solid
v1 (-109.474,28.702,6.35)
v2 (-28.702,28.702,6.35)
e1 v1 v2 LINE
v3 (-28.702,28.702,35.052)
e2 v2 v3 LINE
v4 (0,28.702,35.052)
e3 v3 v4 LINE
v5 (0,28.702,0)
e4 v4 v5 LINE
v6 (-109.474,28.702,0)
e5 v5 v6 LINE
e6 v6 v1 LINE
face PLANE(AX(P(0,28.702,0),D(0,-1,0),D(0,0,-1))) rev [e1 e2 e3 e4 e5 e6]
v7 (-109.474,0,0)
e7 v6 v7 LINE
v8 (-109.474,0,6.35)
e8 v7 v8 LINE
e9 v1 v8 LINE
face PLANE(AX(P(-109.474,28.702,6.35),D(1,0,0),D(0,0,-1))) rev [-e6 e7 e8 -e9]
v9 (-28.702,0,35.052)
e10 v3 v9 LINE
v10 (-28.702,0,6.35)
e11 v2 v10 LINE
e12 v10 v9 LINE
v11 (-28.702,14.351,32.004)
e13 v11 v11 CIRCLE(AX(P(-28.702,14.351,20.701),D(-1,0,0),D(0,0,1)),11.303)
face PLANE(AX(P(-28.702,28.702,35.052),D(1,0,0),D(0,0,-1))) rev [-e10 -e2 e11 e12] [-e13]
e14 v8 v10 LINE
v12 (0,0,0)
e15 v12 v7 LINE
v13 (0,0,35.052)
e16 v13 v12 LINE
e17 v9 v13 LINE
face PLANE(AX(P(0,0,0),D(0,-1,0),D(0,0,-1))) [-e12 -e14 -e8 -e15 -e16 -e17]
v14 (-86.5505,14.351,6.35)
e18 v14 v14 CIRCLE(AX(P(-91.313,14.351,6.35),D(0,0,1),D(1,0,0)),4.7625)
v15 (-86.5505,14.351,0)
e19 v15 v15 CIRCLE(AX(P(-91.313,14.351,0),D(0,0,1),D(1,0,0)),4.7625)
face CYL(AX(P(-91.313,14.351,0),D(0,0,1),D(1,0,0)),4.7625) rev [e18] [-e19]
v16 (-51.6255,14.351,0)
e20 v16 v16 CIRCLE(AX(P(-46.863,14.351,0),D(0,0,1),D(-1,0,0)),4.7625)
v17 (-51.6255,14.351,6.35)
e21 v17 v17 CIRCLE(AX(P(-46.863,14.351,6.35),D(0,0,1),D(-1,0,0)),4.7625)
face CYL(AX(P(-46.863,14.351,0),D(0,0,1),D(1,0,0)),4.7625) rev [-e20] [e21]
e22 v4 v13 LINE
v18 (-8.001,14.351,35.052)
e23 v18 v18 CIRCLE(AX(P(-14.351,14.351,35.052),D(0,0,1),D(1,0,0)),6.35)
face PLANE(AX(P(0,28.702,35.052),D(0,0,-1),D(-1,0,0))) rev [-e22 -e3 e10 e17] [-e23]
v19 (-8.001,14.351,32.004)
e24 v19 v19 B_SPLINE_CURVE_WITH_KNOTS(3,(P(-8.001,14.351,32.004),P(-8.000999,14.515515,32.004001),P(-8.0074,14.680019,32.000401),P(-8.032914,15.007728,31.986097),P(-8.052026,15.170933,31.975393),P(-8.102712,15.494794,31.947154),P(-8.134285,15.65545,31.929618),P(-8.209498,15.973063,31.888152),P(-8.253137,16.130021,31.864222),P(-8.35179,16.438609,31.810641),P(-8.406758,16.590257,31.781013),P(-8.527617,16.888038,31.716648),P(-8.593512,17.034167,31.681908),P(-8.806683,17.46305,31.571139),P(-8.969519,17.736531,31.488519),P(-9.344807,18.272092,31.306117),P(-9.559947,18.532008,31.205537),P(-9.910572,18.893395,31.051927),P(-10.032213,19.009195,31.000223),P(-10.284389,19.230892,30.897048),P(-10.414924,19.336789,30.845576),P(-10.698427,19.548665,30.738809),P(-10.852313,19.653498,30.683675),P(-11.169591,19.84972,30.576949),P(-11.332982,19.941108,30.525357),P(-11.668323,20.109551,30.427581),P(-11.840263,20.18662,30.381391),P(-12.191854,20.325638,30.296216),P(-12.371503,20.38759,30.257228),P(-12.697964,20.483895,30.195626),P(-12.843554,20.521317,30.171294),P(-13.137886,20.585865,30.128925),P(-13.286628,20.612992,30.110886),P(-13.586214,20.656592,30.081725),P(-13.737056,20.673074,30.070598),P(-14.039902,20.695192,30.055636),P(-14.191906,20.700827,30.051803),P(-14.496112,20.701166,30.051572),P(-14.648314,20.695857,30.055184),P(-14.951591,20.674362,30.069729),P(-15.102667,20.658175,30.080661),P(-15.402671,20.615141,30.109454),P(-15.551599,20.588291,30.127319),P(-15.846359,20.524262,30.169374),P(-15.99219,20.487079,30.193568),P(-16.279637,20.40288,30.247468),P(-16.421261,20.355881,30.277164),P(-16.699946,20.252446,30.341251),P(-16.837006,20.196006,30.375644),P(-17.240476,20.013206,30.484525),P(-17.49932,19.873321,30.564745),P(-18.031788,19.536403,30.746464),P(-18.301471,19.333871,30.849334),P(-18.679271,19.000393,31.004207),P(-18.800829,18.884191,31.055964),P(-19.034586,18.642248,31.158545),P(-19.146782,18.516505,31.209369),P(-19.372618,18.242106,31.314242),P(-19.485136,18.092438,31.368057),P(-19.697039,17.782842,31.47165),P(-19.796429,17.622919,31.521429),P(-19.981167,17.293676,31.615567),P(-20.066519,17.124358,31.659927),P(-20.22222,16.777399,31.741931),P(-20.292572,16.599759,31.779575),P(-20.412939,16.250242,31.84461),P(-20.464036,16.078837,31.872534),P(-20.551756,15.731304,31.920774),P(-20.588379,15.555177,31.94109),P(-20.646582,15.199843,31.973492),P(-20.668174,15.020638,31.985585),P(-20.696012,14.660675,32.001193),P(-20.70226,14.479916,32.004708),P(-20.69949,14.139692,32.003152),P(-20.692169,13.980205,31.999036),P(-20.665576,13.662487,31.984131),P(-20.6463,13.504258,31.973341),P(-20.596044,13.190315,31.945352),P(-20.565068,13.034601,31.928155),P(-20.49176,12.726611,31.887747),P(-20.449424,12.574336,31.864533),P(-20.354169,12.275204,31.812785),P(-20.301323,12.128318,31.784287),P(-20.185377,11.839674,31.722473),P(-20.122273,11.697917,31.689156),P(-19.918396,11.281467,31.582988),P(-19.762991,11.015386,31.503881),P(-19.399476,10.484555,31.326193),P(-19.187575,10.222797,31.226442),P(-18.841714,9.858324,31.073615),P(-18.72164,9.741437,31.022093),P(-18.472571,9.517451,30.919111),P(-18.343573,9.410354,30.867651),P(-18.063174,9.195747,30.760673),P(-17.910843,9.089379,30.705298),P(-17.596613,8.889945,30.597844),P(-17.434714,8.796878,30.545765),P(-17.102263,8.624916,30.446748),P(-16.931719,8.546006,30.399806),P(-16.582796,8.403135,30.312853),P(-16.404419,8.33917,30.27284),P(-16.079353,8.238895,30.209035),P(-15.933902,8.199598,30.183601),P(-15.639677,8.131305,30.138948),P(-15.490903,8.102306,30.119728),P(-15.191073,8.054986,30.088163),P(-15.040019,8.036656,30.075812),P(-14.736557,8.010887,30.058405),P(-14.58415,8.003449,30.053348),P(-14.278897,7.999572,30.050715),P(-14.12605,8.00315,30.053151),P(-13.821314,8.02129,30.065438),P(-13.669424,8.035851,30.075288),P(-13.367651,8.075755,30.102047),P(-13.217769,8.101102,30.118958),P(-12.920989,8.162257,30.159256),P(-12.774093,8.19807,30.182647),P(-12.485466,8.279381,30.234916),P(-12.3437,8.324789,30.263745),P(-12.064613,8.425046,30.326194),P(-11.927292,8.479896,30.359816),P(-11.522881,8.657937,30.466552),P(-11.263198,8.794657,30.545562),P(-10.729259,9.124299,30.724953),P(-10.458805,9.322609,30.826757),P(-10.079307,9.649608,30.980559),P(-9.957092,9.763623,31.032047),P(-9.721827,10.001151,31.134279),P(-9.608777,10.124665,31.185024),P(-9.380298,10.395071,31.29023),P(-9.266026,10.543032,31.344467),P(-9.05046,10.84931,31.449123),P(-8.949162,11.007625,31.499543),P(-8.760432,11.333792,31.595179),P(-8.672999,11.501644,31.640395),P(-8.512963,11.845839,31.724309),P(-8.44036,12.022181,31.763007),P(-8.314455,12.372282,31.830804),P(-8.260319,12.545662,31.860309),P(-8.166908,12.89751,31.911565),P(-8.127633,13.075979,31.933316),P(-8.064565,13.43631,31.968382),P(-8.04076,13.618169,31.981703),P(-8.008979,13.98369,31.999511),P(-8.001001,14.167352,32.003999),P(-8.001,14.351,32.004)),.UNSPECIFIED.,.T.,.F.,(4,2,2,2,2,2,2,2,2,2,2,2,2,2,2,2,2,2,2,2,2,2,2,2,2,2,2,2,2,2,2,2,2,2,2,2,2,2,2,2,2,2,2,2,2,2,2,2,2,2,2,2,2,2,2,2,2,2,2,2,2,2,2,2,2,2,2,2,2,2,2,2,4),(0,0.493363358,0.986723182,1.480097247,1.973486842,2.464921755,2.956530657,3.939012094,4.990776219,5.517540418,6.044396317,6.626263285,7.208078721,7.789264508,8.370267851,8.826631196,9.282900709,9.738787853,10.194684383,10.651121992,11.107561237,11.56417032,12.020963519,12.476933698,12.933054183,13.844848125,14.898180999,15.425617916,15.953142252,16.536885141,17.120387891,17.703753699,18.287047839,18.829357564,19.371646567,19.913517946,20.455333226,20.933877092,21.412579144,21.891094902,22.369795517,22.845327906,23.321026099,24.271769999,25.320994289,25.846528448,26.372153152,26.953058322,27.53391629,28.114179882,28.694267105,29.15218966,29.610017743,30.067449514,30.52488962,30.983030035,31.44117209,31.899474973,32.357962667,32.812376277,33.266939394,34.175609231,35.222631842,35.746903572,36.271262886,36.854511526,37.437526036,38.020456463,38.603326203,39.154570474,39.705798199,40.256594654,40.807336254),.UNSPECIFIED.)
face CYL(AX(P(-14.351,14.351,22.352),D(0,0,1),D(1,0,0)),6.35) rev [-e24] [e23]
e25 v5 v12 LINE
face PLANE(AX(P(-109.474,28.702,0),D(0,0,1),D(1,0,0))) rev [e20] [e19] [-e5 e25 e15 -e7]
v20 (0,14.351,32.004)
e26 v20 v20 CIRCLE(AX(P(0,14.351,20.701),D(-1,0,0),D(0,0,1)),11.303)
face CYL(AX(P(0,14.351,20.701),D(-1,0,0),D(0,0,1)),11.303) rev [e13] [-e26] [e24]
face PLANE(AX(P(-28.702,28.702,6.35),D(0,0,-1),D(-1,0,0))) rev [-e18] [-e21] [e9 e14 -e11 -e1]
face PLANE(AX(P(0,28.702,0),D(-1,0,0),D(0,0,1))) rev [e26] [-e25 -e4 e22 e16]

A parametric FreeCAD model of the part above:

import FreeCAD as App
import Part
import Sketcher
Q = App.Units.Quantity


def add_polygon(sketch, points):
    """Adds a closed chain of lines whose ends are joined by coincident constraints."""
    first, n = sketch.GeometryCount, len(points)
    for a, b in zip(points, points[1:] + points[:1]):
        sketch.addGeometry(Part.LineSegment(App.Vector(*a, 0), App.Vector(*b, 0)), False)
    for i in range(n):
        sketch.addConstraint(Sketcher.Constraint("Coincident", first + i, 2, first + (i + 1) % n, 1))

doc = App.newDocument("Part")
body = doc.addObject("PartDesign::Body", "Body")

# Sketch on XZ plane
sketch1 = doc.addObject("Sketcher::SketchObject", "Sketch")
body.addObject(sketch1)
sketch1.AttachmentSupport = (doc.XZ_Plane, [""])
sketch1.MapMode = "FlatFace"
add_polygon(sketch1, [(0, 35), (0, 0), (-109, 0), (-109, 6), (-29, 6), (-29, 35)])  # lines 0-5
sketch1.addConstraint(Sketcher.Constraint("Vertical", 0))
sketch1.addConstraint(Sketcher.Constraint("Horizontal", 1))
sketch1.addConstraint(Sketcher.Constraint("Vertical", 2))
sketch1.addConstraint(Sketcher.Constraint("Horizontal", 3))
sketch1.addConstraint(Sketcher.Constraint("Vertical", 4))
sketch1.addConstraint(Sketcher.Constraint("Horizontal", 5))
sketch1.addConstraint(Sketcher.Constraint("Coincident", 0, 2, -1, 1))
sketch1.addConstraint(Sketcher.Constraint("Equal", 5, 4))
sketch1.addConstraint(Sketcher.Constraint("DistanceX", 1, 2, 1, 1, Q("4.31 in")))
sketch1.addConstraint(Sketcher.Constraint("DistanceX", 3, 1, 3, 2, Q("3.18 in")))
sketch1.addConstraint(Sketcher.Constraint("DistanceY", 0, 2, 0, 1, Q("1.38 in")))
pad1 = doc.addObject("PartDesign::Pad", "Pad")
body.addObject(pad1)
pad1.Profile = sketch1
pad1.Length = Q("1.13 in")
pad1.Reversed = True

# Sketch on YZ plane
sketch2 = doc.addObject("Sketcher::SketchObject", "Sketch001")
body.addObject(sketch2)
sketch2.AttachmentSupport = (doc.YZ_Plane, [""])
sketch2.MapMode = "FlatFace"
sketch2.AttachmentOffset = App.Placement(App.Vector(0, 0, -1.13 * 25.4), App.Rotation())
sketch2.addGeometry(Part.Circle(App.Vector(14, 21, 0), App.Vector(0, 0, 1), 11), False)
sketch2.addConstraint(Sketcher.Constraint("Diameter", 0, Q("0.89 in")))
sketch2.addConstraint(Sketcher.Constraint("DistanceX", -1, 1, 0, 3, Q("0.565 in")))
sketch2.addConstraint(Sketcher.Constraint("DistanceY", -1, 1, 0, 3, Q("0.815 in")))
pocket1 = doc.addObject("PartDesign::Pocket", "Pocket")
body.addObject(pocket1)
pocket1.Profile = sketch2
pocket1.Type = "ThroughAll"
pocket1.Reversed = True

# Sketch on XY plane
sketch3 = doc.addObject("Sketcher::SketchObject", "Sketch002")
body.addObject(sketch3)
sketch3.AttachmentSupport = (doc.XY_Plane, [""])
sketch3.MapMode = "FlatFace"
sketch3.AttachmentOffset = App.Placement(App.Vector(0, 0, 1.38 * 25.4), App.Rotation())
sketch3.addGeometry(Part.Circle(App.Vector(-14, 14, 0), App.Vector(0, 0, 1), 6), False)
sketch3.addConstraint(Sketcher.Constraint("Diameter", 0, Q("0.5 in")))
sketch3.addConstraint(Sketcher.Constraint("DistanceX", 0, 3, -1, 1, Q("0.565 in")))
sketch3.addConstraint(Sketcher.Constraint("DistanceY", -1, 1, 0, 3, Q("0.565 in")))
pocket2 = doc.addObject("PartDesign::Pocket", "Pocket001")
body.addObject(pocket2)
pocket2.Profile = sketch3
pocket2.Length = Q("0.5 in")

# Sketch on XY plane
sketch4 = doc.addObject("Sketcher::SketchObject", "Sketch003")
body.addObject(sketch4)
sketch4.AttachmentSupport = (doc.XY_Plane, [""])
sketch4.MapMode = "FlatFace"
sketch4.AttachmentOffset = App.Placement(App.Vector(0, 0, 0.25 * 25.4), App.Rotation())
sketch4.addGeometry(Part.Circle(App.Vector(-91.3, 14.4, 0), App.Vector(0, 0, 1), 4.8), False)
sketch4.addGeometry(Part.Circle(App.Vector(-46.9, 14.4, 0), App.Vector(0, 0, 1), 4.8), False)
sketch4.addConstraint(Sketcher.Constraint("Equal", 0, 1))
sketch4.addConstraint(Sketcher.Constraint("Horizontal", 0, 3, 1, 3))
sketch4.addConstraint(Sketcher.Constraint("Diameter", 0, Q("0.375 in")))
sketch4.addConstraint(Sketcher.Constraint("DistanceX", 0, 3, 1, 3, Q("1.75 in")))
sketch4.addConstraint(Sketcher.Constraint("DistanceX", 0, 3, -1, 1, Q("3.595 in")))
sketch4.addConstraint(Sketcher.Constraint("DistanceY", -1, 1, 0, 3, Q("0.565 in")))
pocket3 = doc.addObject("PartDesign::Pocket", "Pocket002")
body.addObject(pocket3)
pocket3.Profile = sketch4
pocket3.Type = "ThroughAll"

doc.recompute()
